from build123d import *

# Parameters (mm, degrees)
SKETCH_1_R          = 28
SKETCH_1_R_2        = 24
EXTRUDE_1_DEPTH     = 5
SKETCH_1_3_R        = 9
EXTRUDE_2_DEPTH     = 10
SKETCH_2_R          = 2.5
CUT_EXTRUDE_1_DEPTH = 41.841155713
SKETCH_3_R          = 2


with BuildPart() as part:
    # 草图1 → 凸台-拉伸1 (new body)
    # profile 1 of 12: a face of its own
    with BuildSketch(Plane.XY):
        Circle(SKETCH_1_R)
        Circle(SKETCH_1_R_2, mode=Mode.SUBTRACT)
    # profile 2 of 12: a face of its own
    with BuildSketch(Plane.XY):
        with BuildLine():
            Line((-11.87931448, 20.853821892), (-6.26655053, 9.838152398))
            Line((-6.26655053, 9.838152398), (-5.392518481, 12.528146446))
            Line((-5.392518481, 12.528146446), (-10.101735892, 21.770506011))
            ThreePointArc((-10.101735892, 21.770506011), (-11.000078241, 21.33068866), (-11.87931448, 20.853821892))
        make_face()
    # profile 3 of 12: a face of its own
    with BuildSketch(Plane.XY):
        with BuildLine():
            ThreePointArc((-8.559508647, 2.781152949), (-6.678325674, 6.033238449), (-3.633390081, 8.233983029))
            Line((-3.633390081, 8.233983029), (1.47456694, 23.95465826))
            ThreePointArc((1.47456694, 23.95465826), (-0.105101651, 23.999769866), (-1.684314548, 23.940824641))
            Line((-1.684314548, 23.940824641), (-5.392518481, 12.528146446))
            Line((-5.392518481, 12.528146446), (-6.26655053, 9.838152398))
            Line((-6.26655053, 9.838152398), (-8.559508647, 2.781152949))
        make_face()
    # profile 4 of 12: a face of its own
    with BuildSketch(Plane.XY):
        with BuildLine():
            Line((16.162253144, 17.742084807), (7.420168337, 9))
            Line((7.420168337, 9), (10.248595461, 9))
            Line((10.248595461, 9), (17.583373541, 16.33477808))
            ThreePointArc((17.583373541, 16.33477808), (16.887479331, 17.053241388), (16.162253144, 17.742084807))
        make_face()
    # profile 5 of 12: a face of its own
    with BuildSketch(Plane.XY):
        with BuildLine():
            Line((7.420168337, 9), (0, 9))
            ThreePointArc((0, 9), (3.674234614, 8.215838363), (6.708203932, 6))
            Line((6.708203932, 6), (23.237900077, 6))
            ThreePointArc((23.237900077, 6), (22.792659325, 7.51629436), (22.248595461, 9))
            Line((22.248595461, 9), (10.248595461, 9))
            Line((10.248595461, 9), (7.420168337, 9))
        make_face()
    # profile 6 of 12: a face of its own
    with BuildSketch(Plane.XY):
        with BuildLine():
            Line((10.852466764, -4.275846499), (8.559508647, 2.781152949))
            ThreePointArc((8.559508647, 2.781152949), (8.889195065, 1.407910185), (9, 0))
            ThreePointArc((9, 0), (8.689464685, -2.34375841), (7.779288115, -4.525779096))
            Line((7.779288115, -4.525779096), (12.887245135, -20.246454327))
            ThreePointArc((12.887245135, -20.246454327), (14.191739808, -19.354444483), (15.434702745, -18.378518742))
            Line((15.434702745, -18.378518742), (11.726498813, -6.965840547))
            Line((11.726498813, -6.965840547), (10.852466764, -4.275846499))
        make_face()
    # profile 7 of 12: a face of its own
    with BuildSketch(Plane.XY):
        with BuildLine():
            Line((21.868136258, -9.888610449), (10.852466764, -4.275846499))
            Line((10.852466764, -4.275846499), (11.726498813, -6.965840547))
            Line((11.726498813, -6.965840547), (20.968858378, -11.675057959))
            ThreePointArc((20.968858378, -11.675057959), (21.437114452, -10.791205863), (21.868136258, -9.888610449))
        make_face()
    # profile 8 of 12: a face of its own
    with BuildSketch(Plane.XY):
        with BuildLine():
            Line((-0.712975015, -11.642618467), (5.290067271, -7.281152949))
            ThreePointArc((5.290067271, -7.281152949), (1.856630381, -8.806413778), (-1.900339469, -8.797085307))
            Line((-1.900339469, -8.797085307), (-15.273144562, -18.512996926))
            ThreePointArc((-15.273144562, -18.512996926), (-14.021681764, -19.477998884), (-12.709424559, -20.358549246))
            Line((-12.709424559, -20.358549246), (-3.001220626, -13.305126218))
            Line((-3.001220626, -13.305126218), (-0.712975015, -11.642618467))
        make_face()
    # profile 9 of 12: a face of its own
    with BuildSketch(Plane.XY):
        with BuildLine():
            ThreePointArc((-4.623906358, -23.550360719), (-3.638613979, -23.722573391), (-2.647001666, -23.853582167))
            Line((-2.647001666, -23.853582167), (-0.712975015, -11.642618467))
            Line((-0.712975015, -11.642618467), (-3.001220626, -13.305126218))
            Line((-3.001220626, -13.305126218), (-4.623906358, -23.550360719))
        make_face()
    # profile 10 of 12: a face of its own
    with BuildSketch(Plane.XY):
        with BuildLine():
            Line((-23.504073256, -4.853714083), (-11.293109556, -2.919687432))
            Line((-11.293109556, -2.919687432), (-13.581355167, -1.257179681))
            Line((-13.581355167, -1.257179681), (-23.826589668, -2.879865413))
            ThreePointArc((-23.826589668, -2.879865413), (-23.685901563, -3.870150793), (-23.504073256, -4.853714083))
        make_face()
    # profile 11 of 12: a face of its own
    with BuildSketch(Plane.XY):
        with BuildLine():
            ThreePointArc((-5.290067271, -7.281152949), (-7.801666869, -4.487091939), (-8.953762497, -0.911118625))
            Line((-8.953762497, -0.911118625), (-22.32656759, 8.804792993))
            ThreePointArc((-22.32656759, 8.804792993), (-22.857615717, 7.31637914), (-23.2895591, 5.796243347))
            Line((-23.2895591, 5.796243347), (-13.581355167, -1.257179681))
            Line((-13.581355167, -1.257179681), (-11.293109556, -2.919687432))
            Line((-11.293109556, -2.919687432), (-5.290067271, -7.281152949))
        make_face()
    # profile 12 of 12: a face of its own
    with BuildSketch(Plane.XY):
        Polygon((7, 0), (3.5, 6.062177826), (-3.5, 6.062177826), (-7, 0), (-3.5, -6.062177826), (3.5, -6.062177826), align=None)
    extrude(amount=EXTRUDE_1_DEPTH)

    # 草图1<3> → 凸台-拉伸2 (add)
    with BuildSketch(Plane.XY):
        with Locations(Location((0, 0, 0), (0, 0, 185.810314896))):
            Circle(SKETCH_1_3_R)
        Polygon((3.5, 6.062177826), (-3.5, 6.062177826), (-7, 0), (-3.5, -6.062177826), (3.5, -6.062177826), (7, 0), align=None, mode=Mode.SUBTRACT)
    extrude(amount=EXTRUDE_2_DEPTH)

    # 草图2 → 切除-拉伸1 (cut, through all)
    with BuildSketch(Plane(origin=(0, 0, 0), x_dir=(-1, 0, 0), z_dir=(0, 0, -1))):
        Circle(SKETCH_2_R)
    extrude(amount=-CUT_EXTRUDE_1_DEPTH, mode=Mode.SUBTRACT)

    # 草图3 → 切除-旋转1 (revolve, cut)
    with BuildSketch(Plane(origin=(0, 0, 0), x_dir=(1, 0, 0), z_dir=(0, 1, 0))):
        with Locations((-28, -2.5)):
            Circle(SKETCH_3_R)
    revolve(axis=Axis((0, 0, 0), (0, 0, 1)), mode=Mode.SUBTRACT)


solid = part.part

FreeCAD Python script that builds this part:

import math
import FreeCAD as App
import Part
import Sketcher
Q = App.Units.Quantity

doc = App.newDocument("Part")
body = doc.addObject("PartDesign::Body", "Body")
body.AllowCompound = True

# Sketch on XY plane
sketch1 = doc.addObject("Sketcher::SketchObject", "Sketch")
body.addObject(sketch1)
sketch1.AttachmentSupport = (doc.XY_Plane, [""])
sketch1.MapMode = "FlatFace"
sketch1.addGeometry(Part.Circle(App.Vector(0, 0, 0), App.Vector(0, 0, 1), 28), False)
sketch1.addGeometry(Part.ArcOfCircle(Part.Circle(App.Vector(0, 0, 0), App.Vector(0, 0, 1), 24), math.radians(-24), math.radians(14)), False)
sketch1.addGeometry(Part.LineSegment(App.Vector(21.9, -9.9, 0), App.Vector(10.9, -4.3, 0)), False)
sketch1.addGeometry(Part.LineSegment(App.Vector(10.9, -4.3, 0), App.Vector(8.6, 2.8, 0)), False)
sketch1.addGeometry(Part.ArcOfCircle(Part.Circle(App.Vector(0, 0, 0), App.Vector(0, 0, 1), 9), math.radians(0), math.radians(18)), False)
sketch1.addGeometry(Part.ArcOfCircle(Part.Circle(App.Vector(0, 0, 0), App.Vector(0, 0, 1), 9), math.radians(-30), math.radians(0)), False)
sketch1.addGeometry(Part.LineSegment(App.Vector(7.8, -4.5, 0), App.Vector(12.9, -20.2, 0)), False)
sketch1.addGeometry(Part.ArcOfCircle(Part.Circle(App.Vector(0, 0, 0), App.Vector(0, 0, 1), 24), math.radians(-96), math.radians(-58)), False)
sketch1.addGeometry(Part.LineSegment(App.Vector(-2.6, -23.9, 0), App.Vector(-0.7, -11.6, 0)), False)
sketch1.addGeometry(Part.LineSegment(App.Vector(-0.7, -11.6, 0), App.Vector(5.3, -7.3, 0)), False)
sketch1.addGeometry(Part.ArcOfCircle(Part.Circle(App.Vector(0, 0, 0), App.Vector(0, 0, 1), 9), math.radians(-102), math.radians(-54)), False)
sketch1.addGeometry(Part.LineSegment(App.Vector(-1.9, -8.8, 0), App.Vector(-15.3, -18.5, 0)), False)
sketch1.addGeometry(Part.ArcOfCircle(Part.Circle(App.Vector(0, 0, 0), App.Vector(0, 0, 1), 24), math.radians(-168), math.radians(-130)), False)
sketch1.addGeometry(Part.LineSegment(App.Vector(-23.5, -4.9, 0), App.Vector(-11.3, -2.9, 0)), False)
sketch1.addGeometry(Part.LineSegment(App.Vector(-11.3, -2.9, 0), App.Vector(-5.3, -7.3, 0)), False)
sketch1.addGeometry(Part.ArcOfCircle(Part.Circle(App.Vector(0, 0, 0), App.Vector(0, 0, 1), 9), math.radians(-174), math.radians(-126)), False)
sketch1.addGeometry(Part.LineSegment(App.Vector(-9, -0.9, 0), App.Vector(-22.3, 8.8, 0)), False)
sketch1.addGeometry(Part.ArcOfCircle(Part.Circle(App.Vector(0, 0, 0), App.Vector(0, 0, 1), 24), math.radians(120), math.radians(158)), False)
sketch1.addGeometry(Part.LineSegment(App.Vector(-11.9, 20.9, 0), App.Vector(-6.3, 9.8, 0)), False)
sketch1.addGeometry(Part.LineSegment(App.Vector(-6.3, 9.8, 0), App.Vector(-8.6, 2.8, 0)), False)
sketch1.addGeometry(Part.ArcOfCircle(Part.Circle(App.Vector(0, 0, 0), App.Vector(0, 0, 1), 9), math.radians(114), math.radians(162)), False)
sketch1.addGeometry(Part.LineSegment(App.Vector(-3.6, 8.2, 0), App.Vector(1.5, 24, 0)), False)
sketch1.addGeometry(Part.ArcOfCircle(Part.Circle(App.Vector(0, 0, 0), App.Vector(0, 0, 1), 24), math.radians(48), math.radians(86)), False)
sketch1.addGeometry(Part.LineSegment(App.Vector(16.2, 17.7, 0), App.Vector(7.4, 9, 0)), False)
sketch1.addGeometry(Part.LineSegment(App.Vector(7.4, 9, 0), App.Vector(0, 9, 0)), False)
sketch1.addGeometry(Part.ArcOfCircle(Part.Circle(App.Vector(0, 0, 0), App.Vector(0, 0, 1), 9), math.radians(42), math.radians(90)), False)
sketch1.addGeometry(Part.LineSegment(App.Vector(6.7, 6, 0), App.Vector(23.2, 6, 0)), False)
sketch1.addGeometry(Part.ArcOfCircle(Part.Circle(App.Vector(0, 0, 0), App.Vector(0, 0, 1), 24), math.radians(22), math.radians(43)), False)
sketch1.addGeometry(Part.LineSegment(App.Vector(22.2, 9, 0), App.Vector(10.2, 9, 0)), False)
sketch1.addGeometry(Part.LineSegment(App.Vector(10.2, 9, 0), App.Vector(17.6, 16.3, 0)), False)
sketch1.addGeometry(Part.ArcOfCircle(Part.Circle(App.Vector(0, 0, 0), App.Vector(0, 0, 1), 24), math.radians(94), math.radians(115)), False)
sketch1.addGeometry(Part.LineSegment(App.Vector(-1.7, 23.9, 0), App.Vector(-5.4, 12.5, 0)), False)
sketch1.addGeometry(Part.LineSegment(App.Vector(-5.4, 12.5, 0), App.Vector(-10.1, 21.8, 0)), False)
sketch1.addGeometry(Part.ArcOfCircle(Part.Circle(App.Vector(0, 0, 0), App.Vector(0, 0, 1), 24), math.radians(166), math.radians(187)), False)
sketch1.addGeometry(Part.LineSegment(App.Vector(-23.3, 5.8, 0), App.Vector(-13.6, -1.3, 0)), False)
sketch1.addGeometry(Part.LineSegment(App.Vector(-13.6, -1.3, 0), App.Vector(-23.8, -2.9, 0)), False)
sketch1.addGeometry(Part.ArcOfCircle(Part.Circle(App.Vector(0, 0, 0), App.Vector(0, 0, 1), 24), math.radians(-122), math.radians(-101)), False)
sketch1.addGeometry(Part.LineSegment(App.Vector(-12.7, -20.4, 0), App.Vector(-3, -13.3, 0)), False)
sketch1.addGeometry(Part.LineSegment(App.Vector(-3, -13.3, 0), App.Vector(-4.6, -23.6, 0)), False)
sketch1.addGeometry(Part.ArcOfCircle(Part.Circle(App.Vector(0, 0, 0), App.Vector(0, 0, 1), 24), math.radians(-50), math.radians(-29)), False)
sketch1.addGeometry(Part.LineSegment(App.Vector(15.4, -18.4, 0), App.Vector(11.7, -7, 0)), False)
sketch1.addGeometry(Part.LineSegment(App.Vector(11.7, -7, 0), App.Vector(21, -11.7, 0)), False)
sketch1.addGeometry(Part.LineSegment(App.Vector(7, 0, 0), App.Vector(3.5, 6.1, 0)), False)
sketch1.addGeometry(Part.LineSegment(App.Vector(3.5, 6.1, 0), App.Vector(-3.5, 6.1, 0)), False)
sketch1.addGeometry(Part.LineSegment(App.Vector(-3.5, 6.1, 0), App.Vector(-7, 0, 0)), False)
sketch1.addGeometry(Part.LineSegment(App.Vector(-7, 0, 0), App.Vector(-3.5, -6.1, 0)), False)
sketch1.addGeometry(Part.LineSegment(App.Vector(-3.5, -6.1, 0), App.Vector(3.5, -6.1, 0)), False)
sketch1.addGeometry(Part.LineSegment(App.Vector(3.5, -6.1, 0), App.Vector(7, 0, 0)), False)
sketch1.addConstraint(Sketcher.Constraint("Coincident", 1, 1, 2, 1))
sketch1.addConstraint(Sketcher.Constraint("Coincident", 2, 2, 3, 1))
sketch1.addConstraint(Sketcher.Constraint("Tangent", 3, 2, 4, 2))
sketch1.addConstraint(Sketcher.Constraint("Tangent", 4, 1, 5, 2))
sketch1.addConstraint(Sketcher.Constraint("Coincident", 5, 1, 6, 1))
sketch1.addConstraint(Sketcher.Constraint("Coincident", 6, 2, 7, 2))
sketch1.addConstraint(Sketcher.Constraint("Coincident", 7, 1, 8, 1))
sketch1.addConstraint(Sketcher.Constraint("Coincident", 8, 2, 9, 1))
sketch1.addConstraint(Sketcher.Constraint("Tangent", 9, 2, 10, 2))
sketch1.addConstraint(Sketcher.Constraint("Coincident", 10, 1, 11, 1))
sketch1.addConstraint(Sketcher.Constraint("Coincident", 11, 2, 12, 2))
sketch1.addConstraint(Sketcher.Constraint("Coincident", 12, 1, 13, 1))
sketch1.addConstraint(Sketcher.Constraint("Coincident", 13, 2, 14, 1))
sketch1.addConstraint(Sketcher.Constraint("Tangent", 14, 2, 15, 2))
sketch1.addConstraint(Sketcher.Constraint("Coincident", 15, 1, 16, 1))
sketch1.addConstraint(Sketcher.Constraint("Coincident", 16, 2, 17, 2))
sketch1.addConstraint(Sketcher.Constraint("Coincident", 17, 1, 18, 1))
sketch1.addConstraint(Sketcher.Constraint("Coincident", 18, 2, 19, 1))
sketch1.addConstraint(Sketcher.Constraint("Tangent", 19, 2, 20, 2))
sketch1.addConstraint(Sketcher.Constraint("Coincident", 20, 1, 21, 1))
sketch1.addConstraint(Sketcher.Constraint("Coincident", 21, 2, 22, 2))
sketch1.addConstraint(Sketcher.Constraint("Coincident", 22, 1, 23, 1))
sketch1.addConstraint(Sketcher.Constraint("Coincident", 23, 2, 24, 1))
sketch1.addConstraint(Sketcher.Constraint("Tangent", 24, 2, 25, 2))
sketch1.addConstraint(Sketcher.Constraint("Coincident", 25, 1, 26, 1))
sketch1.addConstraint(Sketcher.Constraint("Coincident", 26, 2, 1, 2))
sketch1.addConstraint(Sketcher.Constraint("Coincident", 27, 1, 28, 1))
sketch1.addConstraint(Sketcher.Constraint("Coincident", 28, 2, 29, 1))
sketch1.addConstraint(Sketcher.Constraint("Coincident", 29, 2, 27, 2))
sketch1.addConstraint(Sketcher.Constraint("Coincident", 30, 1, 31, 1))
sketch1.addConstraint(Sketcher.Constraint("Coincident", 31, 2, 32, 1))
sketch1.addConstraint(Sketcher.Constraint("Coincident", 32, 2, 30, 2))
sketch1.addConstraint(Sketcher.Constraint("Coincident", 33, 1, 34, 1))
sketch1.addConstraint(Sketcher.Constraint("Coincident", 34, 2, 35, 1))
sketch1.addConstraint(Sketcher.Constraint("Coincident", 35, 2, 33, 2))
sketch1.addConstraint(Sketcher.Constraint("Coincident", 36, 1, 37, 1))
sketch1.addConstraint(Sketcher.Constraint("Coincident", 37, 2, 38, 1))
sketch1.addConstraint(Sketcher.Constraint("Coincident", 38, 2, 36, 2))
sketch1.addConstraint(Sketcher.Constraint("Coincident", 39, 1, 40, 1))
sketch1.addConstraint(Sketcher.Constraint("Coincident", 40, 2, 41, 1))
sketch1.addConstraint(Sketcher.Constraint("Coincident", 41, 2, 39, 2))
sketch1.addConstraint(Sketcher.Constraint("Coincident", 42, 2, 43, 1))
sketch1.addConstraint(Sketcher.Constraint("Coincident", 43, 2, 44, 1))
sketch1.addConstraint(Sketcher.Constraint("Coincident", 44, 2, 45, 1))
sketch1.addConstraint(Sketcher.Constraint("Coincident", 45, 2, 46, 1))
sketch1.addConstraint(Sketcher.Constraint("Coincident", 46, 2, 47, 1))
sketch1.addConstraint(Sketcher.Constraint("Coincident", 47, 2, 42, 1))
sketch1.addConstraint(Sketcher.Constraint("Horizontal", 24))
sketch1.addConstraint(Sketcher.Constraint("Horizontal", 26))
sketch1.addConstraint(Sketcher.Constraint("Horizontal", 28))
sketch1.addConstraint(Sketcher.Constraint("Horizontal", 43))
sketch1.addConstraint(Sketcher.Constraint("Horizontal", 46))
sketch1.addConstraint(Sketcher.Constraint("Coincident", 0, 3, -1, 1))
sketch1.addConstraint(Sketcher.Constraint("Coincident", 1, 3, -1, 1))
sketch1.addConstraint(Sketcher.Constraint("Coincident", 4, 3, -1, 1))
sketch1.addConstraint(Sketcher.Constraint("Coincident", 7, 3, -1, 1))
sketch1.addConstraint(Sketcher.Constraint("Coincident", 10, 3, -1, 1))
sketch1.addConstraint(Sketcher.Constraint("Coincident", 12, 3, -1, 1))
sketch1.addConstraint(Sketcher.Constraint("Coincident", 15, 3, -1, 1))
sketch1.addConstraint(Sketcher.Constraint("Coincident", 17, 3, -1, 1))
sketch1.addConstraint(Sketcher.Constraint("Coincident", 20, 3, -1, 1))
sketch1.addConstraint(Sketcher.Constraint("Coincident", 22, 3, -1, 1))
sketch1.addConstraint(Sketcher.Constraint("Coincident", 25, 3, -1, 1))
sketch1.addConstraint(Sketcher.Constraint("Coincident", 27, 3, -1, 1))
sketch1.addConstraint(Sketcher.Constraint("Coincident", 30, 3, -1, 1))
sketch1.addConstraint(Sketcher.Constraint("Coincident", 33, 3, -1, 1))
sketch1.addConstraint(Sketcher.Constraint("Coincident", 36, 3, -1, 1))
sketch1.addConstraint(Sketcher.Constraint("Coincident", 39, 3, -1, 1))
sketch1.addConstraint(Sketcher.Constraint("Equal", 4, 5))
sketch1.addConstraint(Sketcher.Constraint("Equal", 1, 7))
sketch1.addConstraint(Sketcher.Constraint("Equal", 5, 10))
sketch1.addConstraint(Sketcher.Constraint("Equal", 7, 12))
sketch1.addConstraint(Sketcher.Constraint("Equal", 10, 15))
sketch1.addConstraint(Sketcher.Constraint("Equal", 12, 17))
sketch1.addConstraint(Sketcher.Constraint("Equal", 15, 20))
sketch1.addConstraint(Sketcher.Constraint("Equal", 17, 22))
sketch1.addConstraint(Sketcher.Constraint("Equal", 20, 25))
sketch1.addConstraint(Sketcher.Constraint("Equal", 22, 27))
sketch1.addConstraint(Sketcher.Constraint("Equal", 27, 30))
sketch1.addConstraint(Sketcher.Constraint("Equal", 30, 33))
sketch1.addConstraint(Sketcher.Constraint("Equal", 33, 36))
sketch1.addConstraint(Sketcher.Constraint("Equal", 36, 39))
sketch1.addConstraint(Sketcher.Constraint("Symmetric", 42, 2, 45, 2, -1, 1))
sketch1.addConstraint(Sketcher.Constraint("Symmetric", 44, 2, 47, 2, -1, 1))
sketch1.addConstraint(Sketcher.Constraint("PointOnObject", 4, 1, -1))
sketch1.addConstraint(Sketcher.Constraint("PointOnObject", 44, 2, -1))
sketch1.addConstraint(Sketcher.Constraint("Parallel", 3, 6))
sketch1.addConstraint(Sketcher.Constraint("Parallel", 9, 11))
sketch1.addConstraint(Sketcher.Constraint("Parallel", 14, 16))
sketch1.addConstraint(Sketcher.Constraint("Parallel", 19, 21))
sketch1.addConstraint(Sketcher.Constraint("Parallel", 23, 29))
sketch1.addConstraint(Sketcher.Constraint("Parallel", 21, 31))
sketch1.addConstraint(Sketcher.Constraint("Parallel", 18, 32))
sketch1.addConstraint(Sketcher.Constraint("Parallel", 16, 34))
sketch1.addConstraint(Sketcher.Constraint("Parallel", 13, 35))
sketch1.addConstraint(Sketcher.Constraint("Parallel", 11, 37))
sketch1.addConstraint(Sketcher.Constraint("Parallel", 8, 38))
sketch1.addConstraint(Sketcher.Constraint("Parallel", 6, 40))
sketch1.addConstraint(Sketcher.Constraint("Parallel", 2, 41))
sketch1.addConstraint(Sketcher.Constraint("Parallel", 44, 47))
sketch1.addConstraint(Sketcher.Constraint("Horizontal", 9, 2, 14, 2))
sketch1.addConstraint(Sketcher.Constraint("Horizontal", 3, 2, 19, 2))
sketch1.addConstraint(Sketcher.Constraint("Horizontal", 24, 2, 27, 1))
sketch1.addConstraint(Sketcher.Constraint("Vertical", 43, 2, 45, 2))
sketch1.addConstraint(Sketcher.Constraint("Equal", 2, 8))
sketch1.addConstraint(Sketcher.Constraint("Equal", 3, 9))
sketch1.addConstraint(Sketcher.Constraint("Equal", 6, 11))
sketch1.addConstraint(Sketcher.Constraint("Equal", 8, 13))
sketch1.addConstraint(Sketcher.Constraint("Equal", 9, 14))
sketch1.addConstraint(Sketcher.Constraint("Equal", 11, 16))
sketch1.addConstraint(Sketcher.Constraint("Equal", 13, 18))
sketch1.addConstraint(Sketcher.Constraint("Equal", 14, 19))
sketch1.addConstraint(Sketcher.Constraint("Equal", 16, 21))
sketch1.addConstraint(Sketcher.Constraint("Equal", 18, 23))
sketch1.addConstraint(Sketcher.Constraint("Equal", 29, 32))
sketch1.addConstraint(Sketcher.Constraint("Equal", 31, 34))
sketch1.addConstraint(Sketcher.Constraint("Equal", 32, 35))
sketch1.addConstraint(Sketcher.Constraint("Equal", 34, 37))
sketch1.addConstraint(Sketcher.Constraint("Equal", 35, 38))
sketch1.addConstraint(Sketcher.Constraint("Equal", 37, 40))
sketch1.addConstraint(Sketcher.Constraint("Equal", 38, 41))
sketch1.addConstraint(Sketcher.Constraint("Diameter", 0, Q("56 mm")))
sketch1.addConstraint(Sketcher.Constraint("Radius", 1, Q("24 mm")))
sketch1.addConstraint(Sketcher.Constraint("Radius", 4, Q("9 mm")))
sketch1.addConstraint(Sketcher.Constraint("DistanceX", 28, 2, 28, 1, Q("12 mm")))
sketch1.addConstraint(Sketcher.Constraint("DistanceX", 43, 2, 43, 1, Q("7 mm")))
sketch1.addConstraint(Sketcher.Constraint("Angle", 2, Q("153 deg")))
sketch1.addConstraint(Sketcher.Constraint("Angle", 3, Q("108 deg")))
sketch1.addConstraint(Sketcher.Constraint("Angle", 8, Q("81 deg")))
sketch1.addConstraint(Sketcher.Constraint("Angle", 23, Q("-135 deg")))
sketch1.addConstraint(Sketcher.Constraint("Angle", 42, Q("120 deg")))
sketch1.addConstraint(Sketcher.Constraint("Distance", 31, Q("12 mm")))
sketch1.addConstraint(Sketcher.Constraint("Distance", 42, Q("7 mm")))
sketch1.addConstraint(Sketcher.Constraint("DistanceY", -1, 1, 25, 1, Q("6 mm")))
sketch1.addConstraint(Sketcher.Constraint("DistanceX", 7, 1, -1, 1, Q("2.647002 mm")))
sketch1.addConstraint(Sketcher.Constraint("DistanceX", -1, 1, 5, 1, Q("7.779288 mm")))
pad1 = doc.addObject("PartDesign::Pad", "Pad")
body.addObject(pad1)
pad1.Profile = sketch1
pad1.Length = 5

# Sketch on XY plane
sketch2 = doc.addObject("Sketcher::SketchObject", "Sketch001")
body.addObject(sketch2)
sketch2.AttachmentSupport = (doc.XY_Plane, [""])
sketch2.MapMode = "FlatFace"
sketch2.addGeometry(Part.Circle(App.Vector(0, 0, 0), App.Vector(0, 0, 1), 9), False)
sketch2.addGeometry(Part.LineSegment(App.Vector(-4, 6, 0), App.Vector(4, 6, 0)), False)
sketch2.addGeometry(Part.LineSegment(App.Vector(4, 6, 0), App.Vector(7, 0, 0)), False)
sketch2.addGeometry(Part.LineSegment(App.Vector(7, 0, 0), App.Vector(4, -6, 0)), False)
sketch2.addGeometry(Part.LineSegment(App.Vector(4, -6, 0), App.Vector(-4, -6, 0)), False)
sketch2.addGeometry(Part.LineSegment(App.Vector(-4, -6, 0), App.Vector(-7, 0, 0)), False)
sketch2.addGeometry(Part.LineSegment(App.Vector(-7, 0, 0), App.Vector(-4, 6, 0)), False)
sketch2.addConstraint(Sketcher.Constraint("Coincident", 1, 2, 2, 1))
sketch2.addConstraint(Sketcher.Constraint("Coincident", 2, 2, 3, 1))
sketch2.addConstraint(Sketcher.Constraint("Coincident", 3, 2, 4, 1))
sketch2.addConstraint(Sketcher.Constraint("Coincident", 4, 2, 5, 1))
sketch2.addConstraint(Sketcher.Constraint("Coincident", 5, 2, 6, 1))
sketch2.addConstraint(Sketcher.Constraint("Coincident", 6, 2, 1, 1))
sketch2.addConstraint(Sketcher.Constraint("Horizontal", 1))
sketch2.addConstraint(Sketcher.Constraint("Horizontal", 4))
sketch2.addConstraint(Sketcher.Constraint("Coincident", 0, 3, -1, 1))
sketch2.addConstraint(Sketcher.Constraint("Symmetric", 1, 2, 4, 2, -1, 1))
sketch2.addConstraint(Sketcher.Constraint("Symmetric", 2, 2, 5, 2, -1, 1))
sketch2.addConstraint(Sketcher.Constraint("PointOnObject", 2, 2, -1))
sketch2.addConstraint(Sketcher.Constraint("Parallel", 3, 6))
sketch2.addConstraint(Sketcher.Constraint("Vertical", 1, 2, 3, 2))
sketch2.addConstraint(Sketcher.Constraint("Diameter", 0, Q("18 mm")))
sketch2.addConstraint(Sketcher.Constraint("DistanceX", 1, 1, 1, 2, Q("7 mm")))
sketch2.addConstraint(Sketcher.Constraint("Angle", 2, Q("-60 deg")))
sketch2.addConstraint(Sketcher.Constraint("Distance", 2, Q("7 mm")))
pad2 = doc.addObject("PartDesign::Pad", "Pad001")
body.addObject(pad2)
pad2.Profile = sketch2
pad2.Length = 10

# Sketch on XY plane
sketch3 = doc.addObject("Sketcher::SketchObject", "Sketch002")
body.addObject(sketch3)
sketch3.AttachmentSupport = (doc.XY_Plane, [""])
sketch3.MapMode = "FlatFace"
sketch3.addGeometry(Part.Circle(App.Vector(0, 0, 0), App.Vector(0, 0, 1), 2.5), False)
sketch3.addConstraint(Sketcher.Constraint("Coincident", 0, 3, -1, 1))
sketch3.addConstraint(Sketcher.Constraint("Diameter", 0, Q("5 mm")))
pocket1 = doc.addObject("PartDesign::Pocket", "Pocket")
body.addObject(pocket1)
pocket1.Profile = sketch3
pocket1.Type = "ThroughAll"
pocket1.Reversed = True

# Sketch on XZ plane
sketch4 = doc.addObject("Sketcher::SketchObject", "Sketch003")
body.addObject(sketch4)
sketch4.AttachmentSupport = (doc.XZ_Plane, [""])
sketch4.MapMode = "FlatFace"
sketch4.addGeometry(Part.Circle(App.Vector(-28, 2.5, 0), App.Vector(0, 0, 1), 2), False)
sketch4.addConstraint(Sketcher.Constraint("Diameter", 0, Q("4 mm")))
sketch4.addConstraint(Sketcher.Constraint("DistanceX", 0, 3, -1, 1, Q("28 mm")))
sketch4.addConstraint(Sketcher.Constraint("DistanceY", -1, 1, 0, 3, Q("2.5 mm")))
groove = doc.addObject("PartDesign::Groove", "Groove")
body.addObject(groove)
groove.Profile = sketch4
groove.ReferenceAxis = (sketch4, ["V_Axis"])
groove.Angle = 360

doc.recompute()
